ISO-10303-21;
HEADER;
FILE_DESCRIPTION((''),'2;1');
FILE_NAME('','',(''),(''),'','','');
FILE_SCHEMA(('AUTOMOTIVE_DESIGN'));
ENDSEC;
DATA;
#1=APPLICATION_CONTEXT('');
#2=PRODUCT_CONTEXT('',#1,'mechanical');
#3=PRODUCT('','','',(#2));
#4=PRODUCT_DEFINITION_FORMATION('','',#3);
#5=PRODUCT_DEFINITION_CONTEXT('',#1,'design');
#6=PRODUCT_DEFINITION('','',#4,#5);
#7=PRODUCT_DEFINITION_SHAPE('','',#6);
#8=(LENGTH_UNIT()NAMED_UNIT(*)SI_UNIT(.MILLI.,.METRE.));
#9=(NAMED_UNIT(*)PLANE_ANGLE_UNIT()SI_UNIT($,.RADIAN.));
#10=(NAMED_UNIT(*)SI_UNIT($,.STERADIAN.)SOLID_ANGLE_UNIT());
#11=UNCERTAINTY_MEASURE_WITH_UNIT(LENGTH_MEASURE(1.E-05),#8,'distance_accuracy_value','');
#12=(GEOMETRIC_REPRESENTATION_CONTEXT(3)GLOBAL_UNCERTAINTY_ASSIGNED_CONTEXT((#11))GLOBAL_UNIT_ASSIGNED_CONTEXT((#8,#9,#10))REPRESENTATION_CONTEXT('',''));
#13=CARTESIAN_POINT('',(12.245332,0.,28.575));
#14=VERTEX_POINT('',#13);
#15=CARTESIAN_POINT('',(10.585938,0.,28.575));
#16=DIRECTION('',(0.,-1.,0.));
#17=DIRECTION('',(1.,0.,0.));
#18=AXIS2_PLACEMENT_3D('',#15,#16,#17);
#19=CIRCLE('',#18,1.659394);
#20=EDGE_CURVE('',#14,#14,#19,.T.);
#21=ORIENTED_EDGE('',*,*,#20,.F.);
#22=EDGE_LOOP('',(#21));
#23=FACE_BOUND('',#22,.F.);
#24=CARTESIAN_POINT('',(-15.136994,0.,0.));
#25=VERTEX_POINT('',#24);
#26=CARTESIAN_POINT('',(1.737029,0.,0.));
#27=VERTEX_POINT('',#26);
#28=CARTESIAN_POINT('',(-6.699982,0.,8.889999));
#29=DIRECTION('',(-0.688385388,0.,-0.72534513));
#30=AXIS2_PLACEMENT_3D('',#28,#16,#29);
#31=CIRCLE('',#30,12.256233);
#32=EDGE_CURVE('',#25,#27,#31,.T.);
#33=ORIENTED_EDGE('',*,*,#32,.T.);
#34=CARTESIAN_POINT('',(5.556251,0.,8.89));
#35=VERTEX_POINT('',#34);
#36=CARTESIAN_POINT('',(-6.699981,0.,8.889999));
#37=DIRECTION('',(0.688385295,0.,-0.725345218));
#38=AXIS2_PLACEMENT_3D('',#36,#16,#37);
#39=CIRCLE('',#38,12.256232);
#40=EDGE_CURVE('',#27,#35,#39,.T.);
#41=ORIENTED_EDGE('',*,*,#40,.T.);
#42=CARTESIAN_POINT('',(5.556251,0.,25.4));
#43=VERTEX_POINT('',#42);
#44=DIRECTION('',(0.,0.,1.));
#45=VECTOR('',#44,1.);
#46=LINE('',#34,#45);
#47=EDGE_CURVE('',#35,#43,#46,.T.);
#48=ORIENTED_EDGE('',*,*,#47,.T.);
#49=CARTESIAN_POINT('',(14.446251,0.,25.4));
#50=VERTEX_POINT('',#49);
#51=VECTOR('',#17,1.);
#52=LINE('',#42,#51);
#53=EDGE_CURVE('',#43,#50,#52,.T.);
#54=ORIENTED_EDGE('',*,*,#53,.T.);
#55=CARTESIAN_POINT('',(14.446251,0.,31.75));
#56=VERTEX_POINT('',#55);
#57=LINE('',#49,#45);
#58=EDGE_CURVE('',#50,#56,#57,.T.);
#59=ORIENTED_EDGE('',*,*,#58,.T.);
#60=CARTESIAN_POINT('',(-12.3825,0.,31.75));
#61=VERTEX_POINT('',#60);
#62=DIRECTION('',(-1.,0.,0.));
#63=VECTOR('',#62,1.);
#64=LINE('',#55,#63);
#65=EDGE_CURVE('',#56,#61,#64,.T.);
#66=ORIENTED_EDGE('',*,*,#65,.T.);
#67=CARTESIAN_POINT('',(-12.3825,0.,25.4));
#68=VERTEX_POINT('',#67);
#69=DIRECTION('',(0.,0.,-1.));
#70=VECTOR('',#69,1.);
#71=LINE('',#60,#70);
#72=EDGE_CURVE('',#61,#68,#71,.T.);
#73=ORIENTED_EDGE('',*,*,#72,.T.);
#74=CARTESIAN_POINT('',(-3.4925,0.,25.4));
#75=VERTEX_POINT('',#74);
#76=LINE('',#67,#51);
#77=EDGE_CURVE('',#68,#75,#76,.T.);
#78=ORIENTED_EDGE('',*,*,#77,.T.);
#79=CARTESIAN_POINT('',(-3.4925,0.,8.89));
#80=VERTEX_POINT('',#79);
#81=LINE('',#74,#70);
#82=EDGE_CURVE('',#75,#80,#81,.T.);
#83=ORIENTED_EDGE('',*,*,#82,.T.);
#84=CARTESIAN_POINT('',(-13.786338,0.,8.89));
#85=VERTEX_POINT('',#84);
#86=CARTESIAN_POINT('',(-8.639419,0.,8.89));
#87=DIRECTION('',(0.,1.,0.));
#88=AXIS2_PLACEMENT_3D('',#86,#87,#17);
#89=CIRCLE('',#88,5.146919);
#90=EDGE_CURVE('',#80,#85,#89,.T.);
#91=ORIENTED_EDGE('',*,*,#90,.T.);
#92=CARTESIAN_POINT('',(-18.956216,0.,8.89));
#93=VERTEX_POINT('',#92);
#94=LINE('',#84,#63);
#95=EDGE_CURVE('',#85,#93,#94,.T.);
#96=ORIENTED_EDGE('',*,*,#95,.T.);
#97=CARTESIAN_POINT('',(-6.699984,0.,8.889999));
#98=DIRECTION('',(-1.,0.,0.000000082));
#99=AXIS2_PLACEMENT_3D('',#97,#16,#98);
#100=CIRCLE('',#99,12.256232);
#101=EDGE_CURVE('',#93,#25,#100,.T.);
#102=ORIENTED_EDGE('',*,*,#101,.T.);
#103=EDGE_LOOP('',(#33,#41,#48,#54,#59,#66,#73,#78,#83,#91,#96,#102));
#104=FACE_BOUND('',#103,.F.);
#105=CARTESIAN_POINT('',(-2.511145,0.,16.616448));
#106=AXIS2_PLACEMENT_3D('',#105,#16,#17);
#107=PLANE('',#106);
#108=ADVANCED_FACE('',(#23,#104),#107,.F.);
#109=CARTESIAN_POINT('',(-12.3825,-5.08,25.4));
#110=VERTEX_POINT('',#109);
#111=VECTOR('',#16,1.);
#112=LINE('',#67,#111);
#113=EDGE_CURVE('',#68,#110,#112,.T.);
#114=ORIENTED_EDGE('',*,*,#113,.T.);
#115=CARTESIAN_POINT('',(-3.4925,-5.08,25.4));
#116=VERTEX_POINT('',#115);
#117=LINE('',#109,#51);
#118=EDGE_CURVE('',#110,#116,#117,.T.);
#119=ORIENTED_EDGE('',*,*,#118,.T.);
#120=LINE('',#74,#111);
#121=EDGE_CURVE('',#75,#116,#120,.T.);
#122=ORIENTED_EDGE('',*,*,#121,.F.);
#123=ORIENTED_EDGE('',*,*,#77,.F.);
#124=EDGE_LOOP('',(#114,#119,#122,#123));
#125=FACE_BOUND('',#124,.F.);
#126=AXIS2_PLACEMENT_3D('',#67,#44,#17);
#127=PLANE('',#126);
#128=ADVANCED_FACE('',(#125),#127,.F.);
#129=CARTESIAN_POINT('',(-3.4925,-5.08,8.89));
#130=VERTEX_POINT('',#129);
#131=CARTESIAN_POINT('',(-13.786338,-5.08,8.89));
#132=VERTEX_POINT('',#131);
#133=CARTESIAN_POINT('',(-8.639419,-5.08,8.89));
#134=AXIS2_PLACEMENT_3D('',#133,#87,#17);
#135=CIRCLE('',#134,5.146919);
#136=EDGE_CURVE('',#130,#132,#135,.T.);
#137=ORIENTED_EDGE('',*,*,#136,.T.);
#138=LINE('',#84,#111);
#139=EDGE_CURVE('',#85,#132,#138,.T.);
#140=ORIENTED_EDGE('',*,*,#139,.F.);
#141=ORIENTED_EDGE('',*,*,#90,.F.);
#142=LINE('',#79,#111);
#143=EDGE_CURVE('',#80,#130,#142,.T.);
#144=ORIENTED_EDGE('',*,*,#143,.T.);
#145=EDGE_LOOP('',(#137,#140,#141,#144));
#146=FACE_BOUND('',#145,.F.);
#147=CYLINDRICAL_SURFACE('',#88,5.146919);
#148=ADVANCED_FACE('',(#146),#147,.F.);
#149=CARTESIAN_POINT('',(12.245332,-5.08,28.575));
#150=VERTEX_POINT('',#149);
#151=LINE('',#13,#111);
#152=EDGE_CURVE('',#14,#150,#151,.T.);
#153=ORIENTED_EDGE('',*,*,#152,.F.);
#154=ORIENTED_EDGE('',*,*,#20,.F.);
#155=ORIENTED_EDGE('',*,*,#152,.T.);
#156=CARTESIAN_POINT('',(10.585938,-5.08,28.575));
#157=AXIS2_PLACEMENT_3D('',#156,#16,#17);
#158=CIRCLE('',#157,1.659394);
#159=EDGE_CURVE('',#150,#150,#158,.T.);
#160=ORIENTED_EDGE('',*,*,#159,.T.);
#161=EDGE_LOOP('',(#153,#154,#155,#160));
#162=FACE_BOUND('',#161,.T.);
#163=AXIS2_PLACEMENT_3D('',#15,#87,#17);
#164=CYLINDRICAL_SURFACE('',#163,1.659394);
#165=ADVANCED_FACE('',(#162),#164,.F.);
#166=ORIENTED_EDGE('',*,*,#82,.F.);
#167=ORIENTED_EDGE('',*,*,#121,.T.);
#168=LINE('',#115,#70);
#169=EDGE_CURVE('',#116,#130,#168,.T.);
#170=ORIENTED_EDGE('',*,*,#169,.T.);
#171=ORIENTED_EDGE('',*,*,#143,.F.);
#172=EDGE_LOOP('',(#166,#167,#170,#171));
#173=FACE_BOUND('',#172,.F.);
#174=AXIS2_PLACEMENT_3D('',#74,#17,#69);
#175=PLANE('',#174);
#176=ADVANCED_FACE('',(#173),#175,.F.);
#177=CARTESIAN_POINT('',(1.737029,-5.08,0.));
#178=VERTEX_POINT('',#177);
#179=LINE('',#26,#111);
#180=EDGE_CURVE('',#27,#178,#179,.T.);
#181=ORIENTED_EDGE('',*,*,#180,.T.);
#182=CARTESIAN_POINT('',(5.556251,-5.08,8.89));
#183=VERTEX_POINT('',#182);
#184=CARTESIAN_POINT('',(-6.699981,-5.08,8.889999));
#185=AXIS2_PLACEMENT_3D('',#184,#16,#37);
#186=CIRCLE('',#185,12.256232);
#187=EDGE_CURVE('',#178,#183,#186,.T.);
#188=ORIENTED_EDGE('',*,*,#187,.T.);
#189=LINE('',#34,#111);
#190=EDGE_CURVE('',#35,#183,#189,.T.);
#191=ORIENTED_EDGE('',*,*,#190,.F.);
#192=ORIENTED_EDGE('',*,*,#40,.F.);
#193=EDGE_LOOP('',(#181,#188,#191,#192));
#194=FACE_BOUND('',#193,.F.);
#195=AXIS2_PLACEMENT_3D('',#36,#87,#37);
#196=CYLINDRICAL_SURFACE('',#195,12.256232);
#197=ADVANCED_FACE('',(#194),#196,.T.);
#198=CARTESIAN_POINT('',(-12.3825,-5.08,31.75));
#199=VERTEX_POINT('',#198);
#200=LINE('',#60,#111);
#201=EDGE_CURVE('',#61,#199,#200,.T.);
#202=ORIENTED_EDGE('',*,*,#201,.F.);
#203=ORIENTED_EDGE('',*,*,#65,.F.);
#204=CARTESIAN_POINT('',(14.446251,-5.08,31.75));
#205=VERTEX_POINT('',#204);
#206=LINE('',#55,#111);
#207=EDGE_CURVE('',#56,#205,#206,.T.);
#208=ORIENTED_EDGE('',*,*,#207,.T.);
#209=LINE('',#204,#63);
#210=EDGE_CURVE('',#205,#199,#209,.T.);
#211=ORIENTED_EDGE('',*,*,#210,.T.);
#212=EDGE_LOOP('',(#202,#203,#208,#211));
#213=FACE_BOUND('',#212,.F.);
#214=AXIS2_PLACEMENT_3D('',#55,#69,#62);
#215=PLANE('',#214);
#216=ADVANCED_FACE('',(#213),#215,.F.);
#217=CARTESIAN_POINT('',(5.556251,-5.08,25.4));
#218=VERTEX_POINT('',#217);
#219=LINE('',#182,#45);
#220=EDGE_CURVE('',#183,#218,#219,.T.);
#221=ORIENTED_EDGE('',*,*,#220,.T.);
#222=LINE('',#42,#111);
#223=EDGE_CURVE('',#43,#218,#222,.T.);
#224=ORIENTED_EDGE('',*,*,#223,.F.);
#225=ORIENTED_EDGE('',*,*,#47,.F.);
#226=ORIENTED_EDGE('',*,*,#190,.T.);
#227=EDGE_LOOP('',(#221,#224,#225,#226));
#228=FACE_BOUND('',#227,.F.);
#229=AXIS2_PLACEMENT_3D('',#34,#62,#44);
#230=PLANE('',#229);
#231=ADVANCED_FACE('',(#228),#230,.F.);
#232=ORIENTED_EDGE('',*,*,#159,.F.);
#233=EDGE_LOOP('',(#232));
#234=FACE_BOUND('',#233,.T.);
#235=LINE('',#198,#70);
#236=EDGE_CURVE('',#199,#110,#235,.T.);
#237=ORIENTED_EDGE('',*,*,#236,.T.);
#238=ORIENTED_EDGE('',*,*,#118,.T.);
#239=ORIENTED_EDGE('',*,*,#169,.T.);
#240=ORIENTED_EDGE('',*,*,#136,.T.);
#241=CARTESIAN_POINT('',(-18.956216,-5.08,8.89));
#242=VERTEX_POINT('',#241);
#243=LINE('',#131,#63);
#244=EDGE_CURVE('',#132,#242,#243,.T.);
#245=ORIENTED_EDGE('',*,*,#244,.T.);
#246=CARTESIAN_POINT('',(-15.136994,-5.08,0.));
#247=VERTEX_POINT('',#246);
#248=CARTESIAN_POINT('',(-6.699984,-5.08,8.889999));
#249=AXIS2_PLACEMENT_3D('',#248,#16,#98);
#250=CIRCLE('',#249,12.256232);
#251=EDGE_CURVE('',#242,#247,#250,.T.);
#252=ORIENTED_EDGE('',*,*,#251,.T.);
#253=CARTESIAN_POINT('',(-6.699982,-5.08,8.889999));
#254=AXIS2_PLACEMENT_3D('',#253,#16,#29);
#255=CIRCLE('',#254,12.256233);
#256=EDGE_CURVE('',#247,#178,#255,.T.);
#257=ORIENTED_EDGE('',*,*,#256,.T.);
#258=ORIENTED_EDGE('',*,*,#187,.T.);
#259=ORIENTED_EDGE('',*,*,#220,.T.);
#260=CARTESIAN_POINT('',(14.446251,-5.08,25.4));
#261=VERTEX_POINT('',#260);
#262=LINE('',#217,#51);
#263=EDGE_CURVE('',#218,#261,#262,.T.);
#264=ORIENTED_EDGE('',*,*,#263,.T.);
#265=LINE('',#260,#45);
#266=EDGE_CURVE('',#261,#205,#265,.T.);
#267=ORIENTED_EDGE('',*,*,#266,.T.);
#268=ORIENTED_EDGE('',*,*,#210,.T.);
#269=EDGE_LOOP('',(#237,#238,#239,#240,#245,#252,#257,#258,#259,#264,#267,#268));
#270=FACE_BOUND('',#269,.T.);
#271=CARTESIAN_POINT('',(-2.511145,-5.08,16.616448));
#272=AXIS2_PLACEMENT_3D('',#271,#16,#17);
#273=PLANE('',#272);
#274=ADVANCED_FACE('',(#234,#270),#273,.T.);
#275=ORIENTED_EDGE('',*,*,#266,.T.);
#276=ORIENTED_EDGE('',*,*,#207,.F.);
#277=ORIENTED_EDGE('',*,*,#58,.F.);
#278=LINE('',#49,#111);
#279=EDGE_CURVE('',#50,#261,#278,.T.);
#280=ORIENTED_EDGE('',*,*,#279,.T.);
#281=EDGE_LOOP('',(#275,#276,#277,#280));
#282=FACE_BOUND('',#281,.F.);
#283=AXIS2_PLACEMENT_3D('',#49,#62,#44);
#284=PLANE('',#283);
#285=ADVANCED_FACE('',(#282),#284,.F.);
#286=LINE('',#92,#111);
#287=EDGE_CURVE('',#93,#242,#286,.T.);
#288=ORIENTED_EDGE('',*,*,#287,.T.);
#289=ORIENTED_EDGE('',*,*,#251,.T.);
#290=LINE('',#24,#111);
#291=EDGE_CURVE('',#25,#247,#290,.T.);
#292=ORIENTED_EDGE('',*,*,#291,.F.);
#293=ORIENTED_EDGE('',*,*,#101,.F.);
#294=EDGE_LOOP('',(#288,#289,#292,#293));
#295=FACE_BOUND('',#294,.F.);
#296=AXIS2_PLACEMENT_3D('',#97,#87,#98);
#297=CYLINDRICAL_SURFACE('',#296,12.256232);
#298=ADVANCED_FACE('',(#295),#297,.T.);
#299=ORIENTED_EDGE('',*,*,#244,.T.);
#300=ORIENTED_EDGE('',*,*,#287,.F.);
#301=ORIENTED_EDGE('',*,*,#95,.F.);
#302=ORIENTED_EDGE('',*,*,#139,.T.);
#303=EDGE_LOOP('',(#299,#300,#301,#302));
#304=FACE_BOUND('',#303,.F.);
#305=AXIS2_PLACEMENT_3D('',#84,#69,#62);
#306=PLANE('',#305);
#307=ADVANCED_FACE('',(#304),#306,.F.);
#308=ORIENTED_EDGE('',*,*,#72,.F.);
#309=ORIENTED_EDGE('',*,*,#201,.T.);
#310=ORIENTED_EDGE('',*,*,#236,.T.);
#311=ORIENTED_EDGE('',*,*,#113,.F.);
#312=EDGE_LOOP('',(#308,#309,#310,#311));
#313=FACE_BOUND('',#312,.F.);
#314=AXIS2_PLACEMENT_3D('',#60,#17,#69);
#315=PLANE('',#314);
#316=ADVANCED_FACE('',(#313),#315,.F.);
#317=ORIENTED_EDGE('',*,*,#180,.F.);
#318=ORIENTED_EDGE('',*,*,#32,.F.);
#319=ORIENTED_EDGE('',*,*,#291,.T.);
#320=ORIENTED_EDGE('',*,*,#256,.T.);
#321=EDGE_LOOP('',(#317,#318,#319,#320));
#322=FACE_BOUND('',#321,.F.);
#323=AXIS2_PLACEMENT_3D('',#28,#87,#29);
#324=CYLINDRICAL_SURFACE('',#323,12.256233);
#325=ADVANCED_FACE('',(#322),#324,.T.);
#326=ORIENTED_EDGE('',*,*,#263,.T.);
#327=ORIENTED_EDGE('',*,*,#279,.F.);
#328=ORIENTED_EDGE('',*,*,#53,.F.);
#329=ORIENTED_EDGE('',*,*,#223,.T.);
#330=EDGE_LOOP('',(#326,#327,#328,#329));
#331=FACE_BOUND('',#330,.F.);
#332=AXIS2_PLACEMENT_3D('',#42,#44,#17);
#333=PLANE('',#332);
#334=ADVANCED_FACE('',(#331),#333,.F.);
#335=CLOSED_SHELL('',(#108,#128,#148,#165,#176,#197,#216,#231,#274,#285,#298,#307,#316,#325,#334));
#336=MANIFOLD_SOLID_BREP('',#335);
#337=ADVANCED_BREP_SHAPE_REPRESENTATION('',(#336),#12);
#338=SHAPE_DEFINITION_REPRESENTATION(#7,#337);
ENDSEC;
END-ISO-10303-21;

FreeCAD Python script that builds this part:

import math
import FreeCAD as App
import Part
import Sketcher
Q = App.Units.Quantity

doc = App.newDocument("Part")
body = doc.addObject("PartDesign::Body", "Body")

# Sketch on XZ plane
sketch1 = body.newObject("Sketcher::SketchObject", "Sketch")
sketch1.AttachmentSupport = (doc.getObject("XZ_Plane"), [""])
sketch1.MapMode = "FlatFace"
sketch1.addGeometry([
    Part.ArcOfCircle(Part.Circle(App.Vector(-6.7, 8.9, 0), App.Vector(0, 0, 1), 12.3), math.radians(180), math.radians(226)),  # 0
    Part.LineSegment(App.Vector(-15.1, 0, 0), App.Vector(1.7, 0, 0)),  # 1
    Part.ArcOfCircle(Part.Circle(App.Vector(-6.7, 8.9, 0), App.Vector(0, 0, 1), 12.3), math.radians(-46), math.radians(0)),  # 2
    Part.LineSegment(App.Vector(5.6, 8.9, 0), App.Vector(5.6, 25.4, 0)),  # 3
    Part.LineSegment(App.Vector(5.6, 25.4, 0), App.Vector(14.4, 25.4, 0)),  # 4
    Part.LineSegment(App.Vector(14.4, 25.4, 0), App.Vector(14.4, 31.8, 0)),  # 5
    Part.LineSegment(App.Vector(14.4, 31.8, 0), App.Vector(-12.4, 31.8, 0)),  # 6
    Part.LineSegment(App.Vector(-12.4, 31.8, 0), App.Vector(-12.4, 25.4, 0)),  # 7
    Part.LineSegment(App.Vector(-12.4, 25.4, 0), App.Vector(-3.5, 25.4, 0)),  # 8
    Part.LineSegment(App.Vector(-3.5, 25.4, 0), App.Vector(-3.5, 8.9, 0)),  # 9
    Part.ArcOfCircle(Part.Circle(App.Vector(-8.6, 8.9, 0), App.Vector(0, 0, 1), 5.1), math.radians(180), math.radians(360)),  # 10
    Part.LineSegment(App.Vector(-13.8, 8.9, 0), App.Vector(-19, 8.9, 0)),  # 11
    Part.Circle(App.Vector(10.6, 28.6, 0), App.Vector(0, 0, 1), 1.7),  # 12
], False)
sketch1.addConstraint([
    Sketcher.Constraint("Coincident", 0, 2, 1, 1),
    Sketcher.Constraint("Coincident", 1, 2, 2, 1),
    Sketcher.Constraint("Tangent", 2, 2, 3, 1),
    Sketcher.Constraint("Coincident", 3, 2, 4, 1),
    Sketcher.Constraint("Coincident", 4, 2, 5, 1),
    Sketcher.Constraint("Coincident", 5, 2, 6, 1),
    Sketcher.Constraint("Coincident", 6, 2, 7, 1),
    Sketcher.Constraint("Coincident", 7, 2, 8, 1),
    Sketcher.Constraint("Coincident", 8, 2, 9, 1),
    Sketcher.Constraint("Tangent", 9, 2, 10, 2),
    Sketcher.Constraint("Coincident", 10, 1, 11, 1),
    Sketcher.Constraint("Coincident", 11, 2, 0, 1),
    Sketcher.Constraint("Horizontal", 1),
    Sketcher.Constraint("Vertical", 3),
    Sketcher.Constraint("Horizontal", 4),
    Sketcher.Constraint("Vertical", 5),
    Sketcher.Constraint("Horizontal", 6),
    Sketcher.Constraint("Vertical", 7),
    Sketcher.Constraint("Horizontal", 8),
    Sketcher.Constraint("Vertical", 9),
    Sketcher.Constraint("Horizontal", 11),
    Sketcher.Constraint("Coincident", 2, 3, 0, 3),
    Sketcher.Constraint("Equal", 0, 2),
    Sketcher.Constraint("PointOnObject", 0, 2, -1),
    Sketcher.Constraint("Horizontal", 2, 3, 10, 3),
    Sketcher.Constraint("Horizontal", 4, 2, 7, 2),
    Sketcher.Constraint("Horizontal", 9, 2, 10, 1),
    Sketcher.Constraint("Equal", 4, 8),
    Sketcher.Constraint("DistanceY", -1, 1, 3, 2, Q("1 in")),
    Sketcher.Constraint("DistanceX", 4, 1, 4, 2, Q("0.35 in")),
    Sketcher.Constraint("DistanceY", 3, 1, 3, 2, Q("0.65 in")),
    Sketcher.Constraint("DistanceY", 5, 1, 5, 2, Q("0.25 in")),
    Sketcher.Constraint("Diameter", 12, 3.318788),
    Sketcher.Constraint("DistanceY", -1, 1, 12, 3, Q("1.125 in")),
    Sketcher.Constraint("DistanceX", -1, 1, 2, 2, Q("0.21875 in")),
    Sketcher.Constraint("Radius", 0, 12.256232),
    Sketcher.Constraint("Radius", 10, 5.146919),
    Sketcher.Constraint("DistanceX", 6, 2, -1, 1, Q("0.4875 in")),
    Sketcher.Constraint("DistanceX", 2, 3, 12, 3, 17.285919),
])
pad1 = body.newObject("PartDesign::Pad", "Pad")
pad1.Profile = sketch1
pad1.Length = Q("0.2 in")

# Sketch on XZ plane
sketch2 = body.newObject("Sketcher::SketchObject", "Sketch001")
sketch2.AttachmentSupport = (doc.getObject("XZ_Plane"), [""])
sketch2.MapMode = "FlatFace"
sketch2.addGeometry([
    Part.ArcOfCircle(Part.Circle(App.Vector(-6.7, 8.9, 0), App.Vector(0, 0, 1), 12.3), math.radians(180), math.radians(226)),  # 0
    Part.ArcOfCircle(Part.Circle(App.Vector(-6.7, 8.9, 0), App.Vector(0, 0, 1), 12.3), math.radians(-134), math.radians(-46)),  # 1
    Part.ArcOfCircle(Part.Circle(App.Vector(-6.7, 8.9, 0), App.Vector(0, 0, 1), 12.3), math.radians(-46), math.radians(0)),  # 2
    Part.LineSegment(App.Vector(5.6, 8.9, 0), App.Vector(5.6, 25.4, 0)),  # 3
    Part.LineSegment(App.Vector(5.6, 25.4, 0), App.Vector(14.4, 25.4, 0)),  # 4
    Part.LineSegment(App.Vector(14.4, 25.4, 0), App.Vector(14.4, 31.8, 0)),  # 5
    Part.LineSegment(App.Vector(14.4, 31.8, 0), App.Vector(-12.4, 31.8, 0)),  # 6
    Part.LineSegment(App.Vector(-12.4, 31.8, 0), App.Vector(-12.4, 25.4, 0)),  # 7
    Part.LineSegment(App.Vector(-12.4, 25.4, 0), App.Vector(-3.5, 25.4, 0)),  # 8
    Part.LineSegment(App.Vector(-3.5, 25.4, 0), App.Vector(-3.5, 8.9, 0)),  # 9
    Part.ArcOfCircle(Part.Circle(App.Vector(-8.6, 8.9, 0), App.Vector(0, 0, 1), 5.1), math.radians(180), math.radians(360)),  # 10
    Part.LineSegment(App.Vector(-13.8, 8.9, 0), App.Vector(-19, 8.9, 0)),  # 11
    Part.Circle(App.Vector(10.6, 28.6, 0), App.Vector(0, 0, 1), 1.7),  # 12
], False)
sketch2.addConstraint([
    Sketcher.Constraint("Tangent", 0, 2, 1, 1),
    Sketcher.Constraint("Tangent", 1, 2, 2, 1),
    Sketcher.Constraint("Tangent", 2, 2, 3, 1),
    Sketcher.Constraint("Coincident", 3, 2, 4, 1),
    Sketcher.Constraint("Coincident", 4, 2, 5, 1),
    Sketcher.Constraint("Coincident", 5, 2, 6, 1),
    Sketcher.Constraint("Coincident", 6, 2, 7, 1),
    Sketcher.Constraint("Coincident", 7, 2, 8, 1),
    Sketcher.Constraint("Coincident", 8, 2, 9, 1),
    Sketcher.Constraint("Tangent", 9, 2, 10, 2),
    Sketcher.Constraint("Coincident", 10, 1, 11, 1),
    Sketcher.Constraint("Coincident", 11, 2, 0, 1),
    Sketcher.Constraint("Vertical", 3),
    Sketcher.Constraint("Horizontal", 4),
    Sketcher.Constraint("Vertical", 5),
    Sketcher.Constraint("Horizontal", 6),
    Sketcher.Constraint("Vertical", 7),
    Sketcher.Constraint("Horizontal", 8),
    Sketcher.Constraint("Vertical", 9),
    Sketcher.Constraint("Horizontal", 11),
    Sketcher.Constraint("Coincident", 2, 3, 0, 3),
    Sketcher.Constraint("PointOnObject", 0, 2, -1),
    Sketcher.Constraint("PointOnObject", 1, 2, -1),
    Sketcher.Constraint("Horizontal", 2, 3, 10, 3),
    Sketcher.Constraint("Horizontal", 4, 2, 7, 2),
    Sketcher.Constraint("Horizontal", 9, 2, 10, 1),
    Sketcher.Constraint("Equal", 4, 8),
    Sketcher.Constraint("DistanceY", -1, 1, 3, 2, Q("1 in")),
    Sketcher.Constraint("DistanceX", 4, 1, 4, 2, Q("0.35 in")),
    Sketcher.Constraint("DistanceY", 3, 1, 3, 2, Q("0.65 in")),
    Sketcher.Constraint("DistanceY", 5, 1, 5, 2, Q("0.25 in")),
    Sketcher.Constraint("Diameter", 12, 3.318788),
    Sketcher.Constraint("DistanceY", -1, 1, 12, 3, Q("1.125 in")),
    Sketcher.Constraint("DistanceX", -1, 1, 2, 2, Q("0.21875 in")),
    Sketcher.Constraint("Radius", 0, 12.256232),
    Sketcher.Constraint("Radius", 10, 5.146919),
    Sketcher.Constraint("DistanceX", 6, 2, -1, 1, Q("0.4875 in")),
    Sketcher.Constraint("DistanceX", 2, 3, 12, 3, 17.285919),
])
pad2 = body.newObject("PartDesign::Pad", "Pad001")
pad2.Profile = sketch2
pad2.Length = Q("0.2 in")

doc.recompute()
